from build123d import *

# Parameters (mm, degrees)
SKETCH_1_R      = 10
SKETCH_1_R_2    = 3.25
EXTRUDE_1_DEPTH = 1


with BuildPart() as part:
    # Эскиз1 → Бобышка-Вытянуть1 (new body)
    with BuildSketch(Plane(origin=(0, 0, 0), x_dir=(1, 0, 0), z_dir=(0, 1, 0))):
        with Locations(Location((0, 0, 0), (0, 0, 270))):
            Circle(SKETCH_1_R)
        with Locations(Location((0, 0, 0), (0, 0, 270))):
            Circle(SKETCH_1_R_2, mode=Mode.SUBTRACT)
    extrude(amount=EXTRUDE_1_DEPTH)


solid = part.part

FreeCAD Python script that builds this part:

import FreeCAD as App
import Part
import Sketcher

doc = App.newDocument("Part")
params = doc.addObject("Spreadsheet::Sheet", "Params")
for row, (alias, value) in enumerate([
    ("sketch1_diameter", "20 mm"),
    ("sketch1_diameter2", "6.5 mm"),
    ("pad1_length", "1 mm"),
], start=1):
    params.set(f"A{row}", alias)
    params.set(f"B{row}", "=" + value)
    params.setAlias(f"B{row}", alias)

body = doc.addObject("PartDesign::Body", "Body")

sketch1 = body.newObject("Sketcher::SketchObject", "Sketch")
sketch1.AttachmentSupport = (doc.getObject("XZ_Plane"), [""])
sketch1.MapMode = "FlatFace"
sketch1.addGeometry(Part.Circle(App.Vector(0, 0, 0), App.Vector(0, 0, 1), 10), False)
sketch1.addGeometry(Part.Circle(App.Vector(0, 0, 0), App.Vector(0, 0, 1), 3.2), False)
sketch1.addConstraint(Sketcher.Constraint("Coincident", 0, 3, -1, 1))
sketch1.addConstraint(Sketcher.Constraint("Coincident", 1, 3, -1, 1))
sketch1.addConstraint(Sketcher.Constraint("Diameter", 0, 20.0))
sketch1.addConstraint(Sketcher.Constraint("Diameter", 1, 6.5))
sketch1.setExpression("Constraints[2]", "Params.sketch1_diameter")
sketch1.setExpression("Constraints[3]", "Params.sketch1_diameter2")
pad1 = body.newObject("PartDesign::Pad", "Pad")
pad1.Profile = sketch1
pad1.setExpression("Length", "Params.pad1_length")
pad1.Reversed = True

doc.recompute()
